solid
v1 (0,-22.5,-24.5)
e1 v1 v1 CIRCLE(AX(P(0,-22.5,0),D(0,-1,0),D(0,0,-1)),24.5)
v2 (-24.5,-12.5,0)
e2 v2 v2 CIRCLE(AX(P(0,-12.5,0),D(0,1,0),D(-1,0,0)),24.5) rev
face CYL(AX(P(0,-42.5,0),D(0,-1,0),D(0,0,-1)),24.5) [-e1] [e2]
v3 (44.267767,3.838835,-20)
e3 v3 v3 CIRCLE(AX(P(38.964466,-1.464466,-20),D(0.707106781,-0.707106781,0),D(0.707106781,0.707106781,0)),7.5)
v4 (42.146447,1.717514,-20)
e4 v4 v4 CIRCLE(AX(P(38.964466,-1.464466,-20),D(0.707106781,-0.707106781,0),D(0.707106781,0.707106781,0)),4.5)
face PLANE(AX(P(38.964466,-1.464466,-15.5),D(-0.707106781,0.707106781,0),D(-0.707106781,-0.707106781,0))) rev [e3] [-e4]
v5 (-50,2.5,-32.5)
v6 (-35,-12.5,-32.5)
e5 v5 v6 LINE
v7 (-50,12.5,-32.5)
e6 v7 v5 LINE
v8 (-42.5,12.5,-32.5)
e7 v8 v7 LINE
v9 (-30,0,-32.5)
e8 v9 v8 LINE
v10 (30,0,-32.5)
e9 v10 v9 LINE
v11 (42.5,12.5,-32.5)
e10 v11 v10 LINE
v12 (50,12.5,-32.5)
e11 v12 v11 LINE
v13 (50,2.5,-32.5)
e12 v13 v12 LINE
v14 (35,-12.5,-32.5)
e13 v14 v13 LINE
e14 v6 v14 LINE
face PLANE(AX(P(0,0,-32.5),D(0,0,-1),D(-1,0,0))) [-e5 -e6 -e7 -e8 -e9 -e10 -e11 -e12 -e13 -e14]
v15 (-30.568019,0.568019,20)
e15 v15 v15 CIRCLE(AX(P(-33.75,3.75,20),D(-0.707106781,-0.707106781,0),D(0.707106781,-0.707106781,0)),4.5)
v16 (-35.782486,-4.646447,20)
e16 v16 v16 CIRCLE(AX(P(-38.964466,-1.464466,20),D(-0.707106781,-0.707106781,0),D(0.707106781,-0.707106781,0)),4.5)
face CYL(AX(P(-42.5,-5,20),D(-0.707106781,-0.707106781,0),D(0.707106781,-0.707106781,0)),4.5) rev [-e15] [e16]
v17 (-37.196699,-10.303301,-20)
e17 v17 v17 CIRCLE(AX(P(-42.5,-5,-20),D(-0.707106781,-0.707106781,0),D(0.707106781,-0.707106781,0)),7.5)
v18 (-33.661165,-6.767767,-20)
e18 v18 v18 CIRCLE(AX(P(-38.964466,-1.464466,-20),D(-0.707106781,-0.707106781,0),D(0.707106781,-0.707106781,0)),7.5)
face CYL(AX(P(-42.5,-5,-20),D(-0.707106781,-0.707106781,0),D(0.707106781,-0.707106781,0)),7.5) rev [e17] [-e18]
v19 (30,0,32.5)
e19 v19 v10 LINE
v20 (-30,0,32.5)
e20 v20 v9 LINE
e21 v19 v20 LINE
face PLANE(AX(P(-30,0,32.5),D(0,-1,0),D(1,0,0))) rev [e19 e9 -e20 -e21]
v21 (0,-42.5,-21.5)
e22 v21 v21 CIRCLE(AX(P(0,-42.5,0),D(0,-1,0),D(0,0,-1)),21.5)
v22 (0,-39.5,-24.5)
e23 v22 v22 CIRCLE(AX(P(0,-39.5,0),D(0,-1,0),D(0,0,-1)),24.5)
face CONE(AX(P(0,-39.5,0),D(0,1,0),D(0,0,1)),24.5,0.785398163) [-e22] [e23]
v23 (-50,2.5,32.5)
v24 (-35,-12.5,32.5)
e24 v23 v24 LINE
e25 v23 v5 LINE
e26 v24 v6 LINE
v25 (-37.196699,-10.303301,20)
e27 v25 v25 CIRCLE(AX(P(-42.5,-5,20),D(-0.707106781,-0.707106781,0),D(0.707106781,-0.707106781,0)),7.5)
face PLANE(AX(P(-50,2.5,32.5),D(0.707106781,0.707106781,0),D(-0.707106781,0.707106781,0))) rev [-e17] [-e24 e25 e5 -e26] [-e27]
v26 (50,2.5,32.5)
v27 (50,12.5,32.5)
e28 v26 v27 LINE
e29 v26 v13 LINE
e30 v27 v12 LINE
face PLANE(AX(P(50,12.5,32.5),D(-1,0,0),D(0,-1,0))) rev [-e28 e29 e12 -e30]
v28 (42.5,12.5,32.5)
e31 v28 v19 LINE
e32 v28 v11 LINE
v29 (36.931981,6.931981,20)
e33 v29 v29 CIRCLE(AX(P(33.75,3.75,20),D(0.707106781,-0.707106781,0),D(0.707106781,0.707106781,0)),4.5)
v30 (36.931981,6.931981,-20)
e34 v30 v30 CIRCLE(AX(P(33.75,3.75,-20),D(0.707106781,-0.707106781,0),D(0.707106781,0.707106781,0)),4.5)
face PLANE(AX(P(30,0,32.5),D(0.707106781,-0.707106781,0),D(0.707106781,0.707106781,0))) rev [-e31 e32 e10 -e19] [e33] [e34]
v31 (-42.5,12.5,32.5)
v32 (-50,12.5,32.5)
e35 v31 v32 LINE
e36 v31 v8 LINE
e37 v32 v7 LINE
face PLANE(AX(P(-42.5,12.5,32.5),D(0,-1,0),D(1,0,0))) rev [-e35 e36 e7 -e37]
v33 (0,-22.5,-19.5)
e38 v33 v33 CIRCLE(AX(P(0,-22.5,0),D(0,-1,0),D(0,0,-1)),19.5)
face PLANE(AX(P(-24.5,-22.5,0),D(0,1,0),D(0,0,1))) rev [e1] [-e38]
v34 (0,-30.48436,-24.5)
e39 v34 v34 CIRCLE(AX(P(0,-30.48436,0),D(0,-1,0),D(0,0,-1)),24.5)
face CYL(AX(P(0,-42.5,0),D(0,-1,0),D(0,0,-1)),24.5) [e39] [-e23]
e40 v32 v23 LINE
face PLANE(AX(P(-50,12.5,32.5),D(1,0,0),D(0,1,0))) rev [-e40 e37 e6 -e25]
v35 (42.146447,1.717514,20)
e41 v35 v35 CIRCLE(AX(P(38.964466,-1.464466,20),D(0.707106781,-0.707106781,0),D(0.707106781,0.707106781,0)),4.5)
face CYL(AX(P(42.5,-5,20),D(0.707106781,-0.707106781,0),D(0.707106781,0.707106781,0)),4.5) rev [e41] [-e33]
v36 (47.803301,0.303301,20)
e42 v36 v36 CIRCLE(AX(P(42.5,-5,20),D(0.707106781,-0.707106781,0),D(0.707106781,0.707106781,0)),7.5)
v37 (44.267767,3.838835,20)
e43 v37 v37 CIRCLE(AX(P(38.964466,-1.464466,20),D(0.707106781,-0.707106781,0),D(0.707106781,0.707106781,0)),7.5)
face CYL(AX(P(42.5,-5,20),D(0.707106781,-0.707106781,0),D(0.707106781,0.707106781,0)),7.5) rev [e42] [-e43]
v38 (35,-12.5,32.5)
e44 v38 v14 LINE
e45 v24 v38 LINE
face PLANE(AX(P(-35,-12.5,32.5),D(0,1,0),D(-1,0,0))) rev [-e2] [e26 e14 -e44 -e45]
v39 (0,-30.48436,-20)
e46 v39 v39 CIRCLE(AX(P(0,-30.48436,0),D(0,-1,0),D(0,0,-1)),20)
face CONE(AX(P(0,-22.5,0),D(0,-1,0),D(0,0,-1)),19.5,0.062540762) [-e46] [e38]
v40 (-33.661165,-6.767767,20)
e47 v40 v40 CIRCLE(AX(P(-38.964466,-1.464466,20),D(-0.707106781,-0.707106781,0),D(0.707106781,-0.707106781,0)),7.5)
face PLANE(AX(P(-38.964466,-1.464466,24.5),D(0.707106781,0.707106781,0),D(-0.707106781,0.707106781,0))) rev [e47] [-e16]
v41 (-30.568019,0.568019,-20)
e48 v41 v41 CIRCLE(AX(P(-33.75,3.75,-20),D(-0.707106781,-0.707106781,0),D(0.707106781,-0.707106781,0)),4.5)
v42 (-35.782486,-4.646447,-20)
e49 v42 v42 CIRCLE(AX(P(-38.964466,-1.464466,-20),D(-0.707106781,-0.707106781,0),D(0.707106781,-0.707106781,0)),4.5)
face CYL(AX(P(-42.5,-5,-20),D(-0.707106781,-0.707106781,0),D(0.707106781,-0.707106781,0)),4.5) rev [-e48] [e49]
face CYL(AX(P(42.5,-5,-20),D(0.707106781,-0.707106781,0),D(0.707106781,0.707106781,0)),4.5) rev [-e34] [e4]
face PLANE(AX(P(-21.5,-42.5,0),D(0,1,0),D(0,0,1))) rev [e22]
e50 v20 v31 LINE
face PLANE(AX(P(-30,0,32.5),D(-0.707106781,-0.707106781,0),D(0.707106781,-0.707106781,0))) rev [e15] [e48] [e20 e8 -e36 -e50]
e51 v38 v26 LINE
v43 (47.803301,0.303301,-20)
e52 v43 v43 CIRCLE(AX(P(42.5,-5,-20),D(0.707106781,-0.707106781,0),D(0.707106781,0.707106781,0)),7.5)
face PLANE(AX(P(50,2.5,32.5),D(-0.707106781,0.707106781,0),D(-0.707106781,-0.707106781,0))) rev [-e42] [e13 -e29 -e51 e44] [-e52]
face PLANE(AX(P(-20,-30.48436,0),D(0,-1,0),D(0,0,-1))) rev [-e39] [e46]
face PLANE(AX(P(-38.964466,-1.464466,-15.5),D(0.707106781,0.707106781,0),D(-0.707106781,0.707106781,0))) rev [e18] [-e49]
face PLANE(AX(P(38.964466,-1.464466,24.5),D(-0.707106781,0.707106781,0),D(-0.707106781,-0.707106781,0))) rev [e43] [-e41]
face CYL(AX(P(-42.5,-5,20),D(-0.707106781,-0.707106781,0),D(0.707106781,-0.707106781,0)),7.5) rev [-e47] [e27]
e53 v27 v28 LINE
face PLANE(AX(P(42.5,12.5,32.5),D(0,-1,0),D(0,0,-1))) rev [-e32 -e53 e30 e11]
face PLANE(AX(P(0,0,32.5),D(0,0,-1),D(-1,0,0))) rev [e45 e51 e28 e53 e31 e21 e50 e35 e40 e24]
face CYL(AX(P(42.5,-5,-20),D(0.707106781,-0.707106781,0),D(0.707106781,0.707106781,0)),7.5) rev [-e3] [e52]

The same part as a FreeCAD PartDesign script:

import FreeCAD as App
import Part
import Sketcher
Q = App.Units.Quantity


def add_polygon(sketch, points):
    """Adds a closed chain of lines whose ends are joined by coincident constraints."""
    first, n = sketch.GeometryCount, len(points)
    for a, b in zip(points, points[1:] + points[:1]):
        sketch.addGeometry(Part.LineSegment(App.Vector(*a, 0), App.Vector(*b, 0)), False)
    for i in range(n):
        sketch.addConstraint(Sketcher.Constraint("Coincident", first + i, 2, first + (i + 1) % n, 1))

doc = App.newDocument("Part")
body = doc.addObject("PartDesign::Body", "Body")

sketch1 = doc.addObject("Sketcher::SketchObject", "Sketch")
body.addObject(sketch1)
sketch1.AttachmentSupport = (doc.XY_Plane, [""])
sketch1.MapMode = "FlatFace"
add_polygon(sketch1, [(30, 0), (-30, 0), (-42, 12), (-50, 12), (-50, 2), (-35, -12), (35, -12), (50, 2), (50, 12), (42, 12)])
sketch1.addConstraint([
    Sketcher.Constraint("Horizontal", 0),
    Sketcher.Constraint("Horizontal", 2),
    Sketcher.Constraint("Vertical", 3),
    Sketcher.Constraint("Horizontal", 5),
    Sketcher.Constraint("Vertical", 7),
    Sketcher.Constraint("Horizontal", 8),
    Sketcher.Constraint("Symmetric", 0, 2, 9, 2, -1, 1),
    Sketcher.Constraint("Symmetric", 3, 2, 6, 2, -2),
    Sketcher.Constraint("Symmetric", 1, 2, 8, 2, -2),
    Sketcher.Constraint("Parallel", 1, 4),
    Sketcher.Constraint("Perpendicular", 4, 6),
    Sketcher.Constraint("Parallel", 6, 9),
    Sketcher.Constraint("DistanceX", 0, 2, 0, 1, Q("60 mm")),
    Sketcher.Constraint("DistanceX", 5, 1, 5, 2, Q("70 mm")),
    Sketcher.Constraint("DistanceY", 3, 2, 3, 1, Q("10 mm")),
    Sketcher.Constraint("DistanceX", 2, 2, 2, 1, Q("7.5 mm")),
    Sketcher.Constraint("DistanceX", 2, 2, -1, 1, Q("50 mm")),
])
pad1 = doc.addObject("PartDesign::Pad", "Pad")
body.addObject(pad1)
pad1.Profile = sketch1
pad1.Length = 65
pad1.Midplane = True

sketch2 = doc.addObject("Sketcher::SketchObject", "Sketch001")
body.addObject(sketch2)
sketch2.AttachmentSupport = (doc.XY_Plane, [""])
sketch2.MapMode = "FlatFace"
add_polygon(sketch2, [(0, -12.5), (-24.5, -12.5), (-24.5, -22.5), (-19.5, -22.5), (-20, -30.5), (-24.5, -30.5), (-24.5, -39.5), (-21.5, -42.5), (0, -42.5)])
sketch2.addConstraint([
    Sketcher.Constraint("Horizontal", 0),
    Sketcher.Constraint("Vertical", 1),
    Sketcher.Constraint("Horizontal", 2),
    Sketcher.Constraint("Horizontal", 4),
    Sketcher.Constraint("Vertical", 5),
    Sketcher.Constraint("Horizontal", 7),
    Sketcher.Constraint("Vertical", 8),
    Sketcher.Constraint("PointOnObject", 7, 2, -2),
    Sketcher.Constraint("Vertical", 1, 2, 4, 2),
    Sketcher.Constraint("DistanceX", 2, 1, 2, 2, Q("5 mm")),
    Sketcher.Constraint("DistanceY", 1, 2, 1, 1, Q("10 mm")),
    Sketcher.Constraint("DistanceY", 8, 1, 8, 2, Q("30 mm")),
    Sketcher.Constraint("Angle", 6, Q("-45 deg")),
    Sketcher.Constraint("Distance", 3, Q("8 mm")),
    Sketcher.Constraint("DistanceX", 0, 2, 0, 1, Q("24.5 mm")),
    Sketcher.Constraint("DistanceX", 4, 2, 4, 1, Q("4.5 mm")),
    Sketcher.Constraint("DistanceX", 7, 1, 7, 2, Q("21.5 mm")),
    Sketcher.Constraint("DistanceY", 0, 2, -1, 1, Q("12.5 mm")),
])
revolution = doc.addObject("PartDesign::Revolution", "Revolution")
body.addObject(revolution)
revolution.Profile = sketch2
revolution.ReferenceAxis = (sketch2, ["V_Axis"])
revolution.Angle = 360

sketch3 = doc.addObject("Sketcher::SketchObject", "Sketch002")
body.addObject(sketch3)
sketch3.AttachmentSupport = (doc.XY_Plane, [""])
sketch3.MapMode = "FlatFace"
sketch3.AttachmentOffset = App.Placement(App.Vector(0, 0, -20), App.Rotation())
add_polygon(sketch3, [(12.5, 50), (-42.5, -5), (-37.2, -10.3), (-33.7, -6.8), (-35.8, -4.6), (15.7, 46.8)])
sketch3.addGeometry(Part.LineSegment(App.Vector(-42.5, -5, 0), App.Vector(12.5, 50, 0)), True)
sketch3.addConstraint([
    Sketcher.Constraint("Coincident", 6, 1, 0, 2),
    Sketcher.Constraint("Coincident", 6, 2, 5, 2),
    Sketcher.Constraint("Perpendicular", 0, 1),
    Sketcher.Constraint("Perpendicular", 1, 2),
    Sketcher.Constraint("Perpendicular", 2, 3),
    Sketcher.Constraint("Perpendicular", 3, 4),
    Sketcher.Constraint("Perpendicular", 4, 5),
    Sketcher.Constraint("Angle", 0, Q("-135 deg")),
    Sketcher.Constraint("Distance", 2, Q("5 mm")),
    Sketcher.Constraint("Distance", 3, Q("3 mm")),
    Sketcher.Constraint("DistanceY", 0, 2, -1, 1, Q("5 mm")),
    Sketcher.Constraint("DistanceY", -1, 1, 5, 2, Q("50 mm")),
    Sketcher.Constraint("Distance", 1, Q("7.5 mm")),
    Sketcher.Constraint("DistanceX", 0, 2, -1, 1, Q("42.5 mm")),
])
groove = doc.addObject("PartDesign::Groove", "Groove")
body.addObject(groove)
groove.Profile = sketch3
groove.ReferenceAxis = (sketch3, ["Axis0"])
groove.Angle = 360
doc.recompute()

linearpattern = doc.addObject("PartDesign::LinearPattern", "LinearPattern")
body.addObject(linearpattern)
linearpattern.Originals = [groove]
linearpattern.Direction = (doc.Z_Axis, [""])
linearpattern.Mode = "offset"
linearpattern.Offset = 40
linearpattern.Occurrences = 2
body.Tip = linearpattern
doc.recompute()

mirrored = doc.addObject("PartDesign::Mirrored", "Mirrored")
body.addObject(mirrored)
mirrored.Originals = [groove]
mirrored.MirrorPlane = (doc.YZ_Plane, [""])
body.Tip = mirrored

sketch4 = doc.addObject("Sketcher::SketchObject", "Sketch003")
body.addObject(sketch4)
sketch4.AttachmentSupport = (doc.XY_Plane, [""])
sketch4.MapMode = "FlatFace"
sketch4.AttachmentOffset = App.Placement(App.Vector(0, 0, 20), App.Rotation())
add_polygon(sketch4, [(42.5, -5), (-12.5, 50), (-15.7, 46.8), (35.8, -4.6), (33.7, -6.8), (37.2, -10.3)])
sketch4.addGeometry(Part.LineSegment(App.Vector(-12.5, 50, 0), App.Vector(42.5, -5, 0)), True)
sketch4.addConstraint([
    Sketcher.Constraint("Coincident", 6, 1, 0, 2),
    Sketcher.Constraint("Coincident", 6, 2, 5, 2),
    Sketcher.Constraint("Perpendicular", 0, 1),
    Sketcher.Constraint("Perpendicular", 1, 2),
    Sketcher.Constraint("Perpendicular", 2, 3),
    Sketcher.Constraint("Perpendicular", 3, 4),
    Sketcher.Constraint("Perpendicular", 4, 5),
    Sketcher.Constraint("Angle", 0, Q("135 deg")),
    Sketcher.Constraint("Distance", 3, Q("3 mm")),
    Sketcher.Constraint("Distance", 4, Q("5 mm")),
    Sketcher.Constraint("DistanceY", -1, 1, 0, 2, Q("50 mm")),
    Sketcher.Constraint("DistanceY", 5, 2, -1, 1, Q("5 mm")),
    Sketcher.Constraint("Distance", 1, Q("4.5 mm")),
    Sketcher.Constraint("DistanceX", 0, 2, -1, 1, Q("12.5 mm")),
])
groove2 = doc.addObject("PartDesign::Groove", "Groove001")
body.addObject(groove2)
groove2.Profile = sketch4
groove2.ReferenceAxis = (sketch4, ["Axis0"])
groove2.Angle = 360

doc.recompute()
